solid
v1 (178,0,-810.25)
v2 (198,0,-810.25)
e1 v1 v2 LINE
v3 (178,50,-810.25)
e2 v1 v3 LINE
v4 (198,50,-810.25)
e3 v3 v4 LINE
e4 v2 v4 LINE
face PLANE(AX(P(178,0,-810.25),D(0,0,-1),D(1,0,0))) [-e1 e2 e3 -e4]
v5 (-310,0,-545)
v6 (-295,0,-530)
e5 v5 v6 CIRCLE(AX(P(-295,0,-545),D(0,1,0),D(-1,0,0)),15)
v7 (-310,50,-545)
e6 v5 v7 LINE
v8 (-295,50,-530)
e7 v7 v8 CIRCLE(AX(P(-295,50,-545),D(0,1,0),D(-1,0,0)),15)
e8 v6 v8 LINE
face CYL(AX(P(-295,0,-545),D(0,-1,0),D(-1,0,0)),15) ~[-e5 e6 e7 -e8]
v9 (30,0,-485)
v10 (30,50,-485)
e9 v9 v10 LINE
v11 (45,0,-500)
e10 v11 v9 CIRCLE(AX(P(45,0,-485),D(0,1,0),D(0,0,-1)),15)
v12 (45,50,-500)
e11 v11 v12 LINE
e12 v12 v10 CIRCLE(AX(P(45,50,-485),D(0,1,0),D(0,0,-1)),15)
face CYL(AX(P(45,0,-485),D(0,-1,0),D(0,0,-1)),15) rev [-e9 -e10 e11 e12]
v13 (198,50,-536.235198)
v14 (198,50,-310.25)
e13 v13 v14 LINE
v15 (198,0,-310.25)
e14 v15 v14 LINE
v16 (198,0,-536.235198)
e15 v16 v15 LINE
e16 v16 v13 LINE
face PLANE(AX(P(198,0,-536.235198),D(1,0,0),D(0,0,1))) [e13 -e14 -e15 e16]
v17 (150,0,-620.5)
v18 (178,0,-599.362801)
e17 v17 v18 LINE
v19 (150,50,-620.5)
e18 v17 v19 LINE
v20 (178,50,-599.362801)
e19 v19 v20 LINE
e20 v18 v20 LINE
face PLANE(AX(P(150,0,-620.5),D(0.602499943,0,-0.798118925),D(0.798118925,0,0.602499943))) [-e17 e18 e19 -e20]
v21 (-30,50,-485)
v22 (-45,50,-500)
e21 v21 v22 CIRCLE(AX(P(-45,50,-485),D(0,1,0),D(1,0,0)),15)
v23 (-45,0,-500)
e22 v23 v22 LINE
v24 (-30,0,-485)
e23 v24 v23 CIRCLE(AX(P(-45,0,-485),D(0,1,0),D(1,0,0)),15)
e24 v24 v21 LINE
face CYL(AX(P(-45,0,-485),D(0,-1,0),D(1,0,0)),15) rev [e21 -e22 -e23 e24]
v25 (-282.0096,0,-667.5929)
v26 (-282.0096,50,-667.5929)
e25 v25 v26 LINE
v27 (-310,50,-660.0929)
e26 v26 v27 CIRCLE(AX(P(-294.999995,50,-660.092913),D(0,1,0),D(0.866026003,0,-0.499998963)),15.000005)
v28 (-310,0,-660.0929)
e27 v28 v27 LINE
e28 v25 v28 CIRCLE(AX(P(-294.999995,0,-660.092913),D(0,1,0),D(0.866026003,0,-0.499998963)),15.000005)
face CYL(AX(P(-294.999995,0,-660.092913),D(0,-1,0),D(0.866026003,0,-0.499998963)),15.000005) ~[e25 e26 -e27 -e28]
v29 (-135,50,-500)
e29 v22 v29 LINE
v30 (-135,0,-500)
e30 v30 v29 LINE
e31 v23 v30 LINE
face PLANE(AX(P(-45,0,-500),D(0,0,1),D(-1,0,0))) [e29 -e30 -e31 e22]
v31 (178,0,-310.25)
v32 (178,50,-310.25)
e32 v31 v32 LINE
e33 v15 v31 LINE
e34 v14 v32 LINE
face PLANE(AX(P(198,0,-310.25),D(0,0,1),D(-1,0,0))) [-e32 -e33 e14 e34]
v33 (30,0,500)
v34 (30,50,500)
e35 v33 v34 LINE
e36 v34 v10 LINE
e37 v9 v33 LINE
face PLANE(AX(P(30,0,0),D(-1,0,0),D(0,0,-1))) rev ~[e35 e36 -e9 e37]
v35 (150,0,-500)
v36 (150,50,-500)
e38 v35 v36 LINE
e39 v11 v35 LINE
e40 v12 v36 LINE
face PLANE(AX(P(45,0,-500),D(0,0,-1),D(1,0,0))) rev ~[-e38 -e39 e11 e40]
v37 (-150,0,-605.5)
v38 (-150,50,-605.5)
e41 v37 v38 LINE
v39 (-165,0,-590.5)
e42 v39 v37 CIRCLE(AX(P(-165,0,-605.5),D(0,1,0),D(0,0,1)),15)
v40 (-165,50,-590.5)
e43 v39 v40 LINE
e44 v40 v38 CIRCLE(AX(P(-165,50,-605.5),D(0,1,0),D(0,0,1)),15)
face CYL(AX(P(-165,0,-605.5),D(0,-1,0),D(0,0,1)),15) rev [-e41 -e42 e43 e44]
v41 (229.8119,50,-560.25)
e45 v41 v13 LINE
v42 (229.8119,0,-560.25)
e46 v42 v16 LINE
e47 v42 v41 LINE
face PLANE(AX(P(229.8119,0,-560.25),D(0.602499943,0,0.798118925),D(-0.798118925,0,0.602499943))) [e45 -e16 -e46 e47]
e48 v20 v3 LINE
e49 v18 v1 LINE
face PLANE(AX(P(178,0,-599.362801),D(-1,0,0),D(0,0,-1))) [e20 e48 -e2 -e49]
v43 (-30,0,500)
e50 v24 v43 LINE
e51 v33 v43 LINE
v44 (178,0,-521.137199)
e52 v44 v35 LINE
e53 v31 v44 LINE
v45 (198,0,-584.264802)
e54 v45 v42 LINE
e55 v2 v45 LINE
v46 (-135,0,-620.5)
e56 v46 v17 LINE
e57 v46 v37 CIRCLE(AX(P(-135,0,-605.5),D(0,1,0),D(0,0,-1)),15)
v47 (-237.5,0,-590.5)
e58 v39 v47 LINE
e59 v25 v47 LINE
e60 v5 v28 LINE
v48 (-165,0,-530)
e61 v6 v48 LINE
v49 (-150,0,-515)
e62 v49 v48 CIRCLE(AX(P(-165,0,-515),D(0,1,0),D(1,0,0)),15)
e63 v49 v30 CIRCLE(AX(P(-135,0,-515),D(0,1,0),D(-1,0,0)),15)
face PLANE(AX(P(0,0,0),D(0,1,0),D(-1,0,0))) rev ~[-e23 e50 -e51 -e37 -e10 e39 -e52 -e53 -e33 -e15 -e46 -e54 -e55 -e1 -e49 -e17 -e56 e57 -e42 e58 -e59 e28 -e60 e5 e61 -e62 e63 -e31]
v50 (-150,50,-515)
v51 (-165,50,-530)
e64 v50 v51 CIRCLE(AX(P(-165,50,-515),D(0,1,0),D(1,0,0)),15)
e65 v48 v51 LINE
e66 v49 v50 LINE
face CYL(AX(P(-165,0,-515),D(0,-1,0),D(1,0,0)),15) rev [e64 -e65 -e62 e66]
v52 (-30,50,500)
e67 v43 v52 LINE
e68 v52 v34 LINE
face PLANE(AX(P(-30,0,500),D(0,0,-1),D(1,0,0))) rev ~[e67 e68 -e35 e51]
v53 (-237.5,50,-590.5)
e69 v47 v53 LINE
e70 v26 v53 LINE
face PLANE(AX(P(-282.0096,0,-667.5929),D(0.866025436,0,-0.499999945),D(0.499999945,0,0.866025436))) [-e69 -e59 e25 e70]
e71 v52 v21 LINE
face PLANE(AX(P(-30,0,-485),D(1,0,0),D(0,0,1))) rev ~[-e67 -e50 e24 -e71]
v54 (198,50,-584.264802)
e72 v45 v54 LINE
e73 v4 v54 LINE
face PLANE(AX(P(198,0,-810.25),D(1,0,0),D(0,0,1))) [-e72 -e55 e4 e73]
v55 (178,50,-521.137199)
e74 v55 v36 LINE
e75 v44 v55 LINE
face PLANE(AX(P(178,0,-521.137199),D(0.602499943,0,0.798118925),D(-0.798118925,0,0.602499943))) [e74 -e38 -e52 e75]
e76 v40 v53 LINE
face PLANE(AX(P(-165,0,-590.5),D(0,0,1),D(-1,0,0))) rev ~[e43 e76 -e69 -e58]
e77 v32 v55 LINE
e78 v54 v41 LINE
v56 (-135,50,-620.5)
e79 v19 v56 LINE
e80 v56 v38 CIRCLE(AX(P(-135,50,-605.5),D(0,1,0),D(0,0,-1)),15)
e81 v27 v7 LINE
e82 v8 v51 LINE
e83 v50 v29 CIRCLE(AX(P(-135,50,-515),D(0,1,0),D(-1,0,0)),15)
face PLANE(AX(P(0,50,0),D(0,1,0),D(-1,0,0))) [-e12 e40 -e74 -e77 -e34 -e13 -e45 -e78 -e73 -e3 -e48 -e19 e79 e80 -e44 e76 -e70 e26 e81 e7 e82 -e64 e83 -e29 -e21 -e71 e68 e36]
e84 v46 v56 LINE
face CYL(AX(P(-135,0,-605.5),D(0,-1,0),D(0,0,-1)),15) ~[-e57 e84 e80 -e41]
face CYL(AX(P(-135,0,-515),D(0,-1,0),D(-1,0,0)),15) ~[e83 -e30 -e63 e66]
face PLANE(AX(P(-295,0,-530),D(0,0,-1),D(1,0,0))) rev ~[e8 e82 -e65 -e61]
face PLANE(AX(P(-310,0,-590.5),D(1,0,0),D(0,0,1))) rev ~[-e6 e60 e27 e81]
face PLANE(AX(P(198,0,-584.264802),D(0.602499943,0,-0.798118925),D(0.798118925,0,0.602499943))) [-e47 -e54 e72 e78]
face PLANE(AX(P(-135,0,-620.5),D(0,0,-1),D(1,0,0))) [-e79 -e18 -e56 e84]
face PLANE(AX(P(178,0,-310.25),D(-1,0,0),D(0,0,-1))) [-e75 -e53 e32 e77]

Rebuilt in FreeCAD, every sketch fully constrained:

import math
import FreeCAD as App
import Part
import Sketcher

V = App.Vector
Q = App.Units.Quantity

doc = App.newDocument("Part")
body = doc.addObject("PartDesign::Body", "Body")

sketch1 = body.newObject("Sketcher::SketchObject", "Sketch")
sketch1.AttachmentSupport = (doc.getObject("XZ_Plane"), [""])
sketch1.MapMode = "FlatFace"
sketch1.addGeometry(Part.ArcOfCircle(Part.Circle(V(-45, -485, 0), V(0, 0, 1), 15), math.radians(-90), math.radians(0)), False)
sketch1.addGeometry(Part.LineSegment(V(-30, -485, 0), V(-30, 500, 0)), False)
sketch1.addGeometry(Part.LineSegment(V(-30, 500, 0), V(30, 500, 0)), False)
sketch1.addGeometry(Part.LineSegment(V(30, 500, 0), V(30, -485, 0)), False)
sketch1.addGeometry(Part.ArcOfCircle(Part.Circle(V(45, -485, 0), V(0, 0, 1), 15), math.radians(180), math.radians(270)), False)
sketch1.addGeometry(Part.LineSegment(V(45, -500, 0), V(150, -500, 0)), False)
sketch1.addGeometry(Part.LineSegment(V(150, -500, 0), V(178, -521.137199, 0)), False)
sketch1.addGeometry(Part.LineSegment(V(178, -521.137199, 0), V(178, -310.25, 0)), False)
sketch1.addGeometry(Part.LineSegment(V(178, -310.25, 0), V(198, -310.25, 0)), False)
sketch1.addGeometry(Part.LineSegment(V(198, -310.25, 0), V(198, -536.235198, 0)), False)
sketch1.addGeometry(Part.LineSegment(V(198, -536.235198, 0), V(229.8119, -560.25, 0)), False)
sketch1.addGeometry(Part.LineSegment(V(229.8119, -560.25, 0), V(198, -584.264802, 0)), False)
sketch1.addGeometry(Part.LineSegment(V(198, -584.264802, 0), V(198, -810.25, 0)), False)
sketch1.addGeometry(Part.LineSegment(V(198, -810.25, 0), V(178, -810.25, 0)), False)
sketch1.addGeometry(Part.LineSegment(V(178, -810.25, 0), V(178, -599.362801, 0)), False)
sketch1.addGeometry(Part.LineSegment(V(178, -599.362801, 0), V(150, -620.5, 0)), False)
sketch1.addGeometry(Part.LineSegment(V(150, -620.5, 0), V(-135, -620.5, 0)), False)
sketch1.addGeometry(Part.ArcOfCircle(Part.Circle(V(-135, -605.5, 0), V(0, 0, 1), 15), math.radians(180), math.radians(270)), False)
sketch1.addGeometry(Part.ArcOfCircle(Part.Circle(V(-165, -605.5, 0), V(0, 0, 1), 15), math.radians(0), math.radians(90)), False)
sketch1.addGeometry(Part.LineSegment(V(-165, -590.5, 0), V(-237.5, -590.5, 0)), False)
sketch1.addGeometry(Part.LineSegment(V(-237.5, -590.5, 0), V(-282.0096, -667.5929, 0)), False)
sketch1.addGeometry(Part.ArcOfCircle(Part.Circle(V(-295, -660.0929, 0), V(0, 0, 1), 15.000016), math.radians(180), math.radians(330.000036)), False)
sketch1.addGeometry(Part.LineSegment(V(-310, -660.0929, 0), V(-310, -545, 0)), False)
sketch1.addGeometry(Part.ArcOfCircle(Part.Circle(V(-295, -545, 0), V(0, 0, 1), 15), math.radians(90), math.radians(180)), False)
sketch1.addGeometry(Part.LineSegment(V(-295, -530, 0), V(-165, -530, 0)), False)
sketch1.addGeometry(Part.ArcOfCircle(Part.Circle(V(-165, -515, 0), V(0, 0, 1), 15), math.radians(-90), math.radians(0)), False)
sketch1.addGeometry(Part.ArcOfCircle(Part.Circle(V(-135, -515, 0), V(0, 0, 1), 15), math.radians(90), math.radians(180)), False)
sketch1.addGeometry(Part.LineSegment(V(-135, -500, 0), V(-45, -500, 0)), False)
sketch1.addConstraint(Sketcher.Constraint("Tangent", 0, 2, 1, 1))
sketch1.addConstraint(Sketcher.Constraint("Coincident", 1, 2, 2, 1))
sketch1.addConstraint(Sketcher.Constraint("Coincident", 2, 2, 3, 1))
sketch1.addConstraint(Sketcher.Constraint("Tangent", 3, 2, 4, 1))
sketch1.addConstraint(Sketcher.Constraint("Tangent", 4, 2, 5, 1))
sketch1.addConstraint(Sketcher.Constraint("Coincident", 5, 2, 6, 1))
sketch1.addConstraint(Sketcher.Constraint("Coincident", 6, 2, 7, 1))
sketch1.addConstraint(Sketcher.Constraint("Coincident", 7, 2, 8, 1))
sketch1.addConstraint(Sketcher.Constraint("Coincident", 8, 2, 9, 1))
sketch1.addConstraint(Sketcher.Constraint("Coincident", 9, 2, 10, 1))
sketch1.addConstraint(Sketcher.Constraint("Coincident", 10, 2, 11, 1))
sketch1.addConstraint(Sketcher.Constraint("Coincident", 11, 2, 12, 1))
sketch1.addConstraint(Sketcher.Constraint("Coincident", 12, 2, 13, 1))
sketch1.addConstraint(Sketcher.Constraint("Coincident", 13, 2, 14, 1))
sketch1.addConstraint(Sketcher.Constraint("Coincident", 14, 2, 15, 1))
sketch1.addConstraint(Sketcher.Constraint("Coincident", 15, 2, 16, 1))
sketch1.addConstraint(Sketcher.Constraint("Tangent", 16, 2, 17, 2))
sketch1.addConstraint(Sketcher.Constraint("Tangent", 17, 1, 18, 1))
sketch1.addConstraint(Sketcher.Constraint("Tangent", 18, 2, 19, 1))
sketch1.addConstraint(Sketcher.Constraint("Coincident", 19, 2, 20, 1))
sketch1.addConstraint(Sketcher.Constraint("Tangent", 20, 2, 21, 2))
sketch1.addConstraint(Sketcher.Constraint("Tangent", 21, 1, 22, 1))
sketch1.addConstraint(Sketcher.Constraint("Tangent", 22, 2, 23, 2))
sketch1.addConstraint(Sketcher.Constraint("Tangent", 23, 1, 24, 1))
sketch1.addConstraint(Sketcher.Constraint("Tangent", 24, 2, 25, 1))
sketch1.addConstraint(Sketcher.Constraint("Tangent", 25, 2, 26, 2))
sketch1.addConstraint(Sketcher.Constraint("Tangent", 26, 1, 27, 1))
sketch1.addConstraint(Sketcher.Constraint("Tangent", 27, 2, 0, 1))
sketch1.addConstraint(Sketcher.Constraint("Vertical", 1))
sketch1.addConstraint(Sketcher.Constraint("Horizontal", 2))
sketch1.addConstraint(Sketcher.Constraint("Vertical", 3))
sketch1.addConstraint(Sketcher.Constraint("Horizontal", 5))
sketch1.addConstraint(Sketcher.Constraint("Vertical", 7))
sketch1.addConstraint(Sketcher.Constraint("Horizontal", 8))
sketch1.addConstraint(Sketcher.Constraint("Vertical", 9))
sketch1.addConstraint(Sketcher.Constraint("Vertical", 12))
sketch1.addConstraint(Sketcher.Constraint("Horizontal", 13))
sketch1.addConstraint(Sketcher.Constraint("Vertical", 14))
sketch1.addConstraint(Sketcher.Constraint("Horizontal", 16))
sketch1.addConstraint(Sketcher.Constraint("Horizontal", 19))
sketch1.addConstraint(Sketcher.Constraint("Vertical", 22))
sketch1.addConstraint(Sketcher.Constraint("Horizontal", 24))
sketch1.addConstraint(Sketcher.Constraint("Horizontal", 27))
sketch1.addConstraint(Sketcher.Constraint("Equal", 0, 4))
sketch1.addConstraint(Sketcher.Constraint("Equal", 4, 17))
sketch1.addConstraint(Sketcher.Constraint("Equal", 17, 18))
sketch1.addConstraint(Sketcher.Constraint("Equal", 18, 21))
sketch1.addConstraint(Sketcher.Constraint("Equal", 21, 23))
sketch1.addConstraint(Sketcher.Constraint("Equal", 23, 25))
sketch1.addConstraint(Sketcher.Constraint("Equal", 25, 26))
sketch1.addConstraint(Sketcher.Constraint("Symmetric", 0, 3, 4, 3, -2))
sketch1.addConstraint(Sketcher.Constraint("Parallel", 6, 10))
sketch1.addConstraint(Sketcher.Constraint("Parallel", 11, 15))
sketch1.addConstraint(Sketcher.Constraint("Horizontal", 17, 3, 18, 3))
sketch1.addConstraint(Sketcher.Constraint("Horizontal", 25, 3, 26, 3))
sketch1.addConstraint(Sketcher.Constraint("Vertical", 18, 3, 25, 3))
sketch1.addConstraint(Sketcher.Constraint("Vertical", 9, 2, 11, 2))
sketch1.addConstraint(Sketcher.Constraint("Vertical", 7, 2, 13, 2))
sketch1.addConstraint(Sketcher.Constraint("Vertical", 5, 2, 15, 2))
sketch1.addConstraint(Sketcher.Constraint("Equal", 9, 12))
sketch1.addConstraint(Sketcher.Constraint("Equal", 7, 14))
sketch1.addConstraint(Sketcher.Constraint("Equal", 10, 11))
sketch1.addConstraint(Sketcher.Constraint("Radius", 0, Q("15 mm")))
sketch1.addConstraint(Sketcher.Constraint("DistanceX", 2, 1, 2, 2, Q("60 mm")))
sketch1.addConstraint(Sketcher.Constraint("DistanceX", 8, 1, 8, 2, Q("20 mm")))
sketch1.addConstraint(Sketcher.Constraint("DistanceY", -1, 1, 1, 2, Q("500 mm")))
sketch1.addConstraint(Sketcher.Constraint("DistanceY", 4, 2, -1, 1, Q("500 mm")))
sketch1.addConstraint(Sketcher.Constraint("DistanceX", -1, 1, 6, 2, Q("178 mm")))
sketch1.addConstraint(Sketcher.Constraint("DistanceX", 21, 3, 17, 3, Q("160 mm")))
sketch1.addConstraint(Sketcher.Constraint("DistanceY", 17, 3, 0, 3, Q("120.5 mm")))
sketch1.addConstraint(Sketcher.Constraint("DistanceX", 5, 1, 5, 2, Q("105 mm")))
sketch1.addConstraint(Sketcher.Constraint("DistanceX", 16, 2, 16, 1, Q("285 mm")))
sketch1.addConstraint(Sketcher.Constraint("Angle", 20, Q("-120 deg")))
sketch1.addConstraint(Sketcher.Constraint("DistanceY", 5, 2, 7, 2, Q("189.75 mm")))
sketch1.addConstraint(Sketcher.Constraint("DistanceX", 19, 2, 19, 1, Q("72.5 mm")))
sketch1.addConstraint(Sketcher.Constraint("Angle", 6, Q("-37.0492 deg")))
sketch1.addConstraint(Sketcher.Constraint("DistanceY", 9, 2, 9, 1, Q("225.9852 mm")))
pad1 = body.newObject("PartDesign::Pad", "Pad")
pad1.Profile = sketch1
pad1.Length = 50
pad1.Reversed = True

doc.recompute()
